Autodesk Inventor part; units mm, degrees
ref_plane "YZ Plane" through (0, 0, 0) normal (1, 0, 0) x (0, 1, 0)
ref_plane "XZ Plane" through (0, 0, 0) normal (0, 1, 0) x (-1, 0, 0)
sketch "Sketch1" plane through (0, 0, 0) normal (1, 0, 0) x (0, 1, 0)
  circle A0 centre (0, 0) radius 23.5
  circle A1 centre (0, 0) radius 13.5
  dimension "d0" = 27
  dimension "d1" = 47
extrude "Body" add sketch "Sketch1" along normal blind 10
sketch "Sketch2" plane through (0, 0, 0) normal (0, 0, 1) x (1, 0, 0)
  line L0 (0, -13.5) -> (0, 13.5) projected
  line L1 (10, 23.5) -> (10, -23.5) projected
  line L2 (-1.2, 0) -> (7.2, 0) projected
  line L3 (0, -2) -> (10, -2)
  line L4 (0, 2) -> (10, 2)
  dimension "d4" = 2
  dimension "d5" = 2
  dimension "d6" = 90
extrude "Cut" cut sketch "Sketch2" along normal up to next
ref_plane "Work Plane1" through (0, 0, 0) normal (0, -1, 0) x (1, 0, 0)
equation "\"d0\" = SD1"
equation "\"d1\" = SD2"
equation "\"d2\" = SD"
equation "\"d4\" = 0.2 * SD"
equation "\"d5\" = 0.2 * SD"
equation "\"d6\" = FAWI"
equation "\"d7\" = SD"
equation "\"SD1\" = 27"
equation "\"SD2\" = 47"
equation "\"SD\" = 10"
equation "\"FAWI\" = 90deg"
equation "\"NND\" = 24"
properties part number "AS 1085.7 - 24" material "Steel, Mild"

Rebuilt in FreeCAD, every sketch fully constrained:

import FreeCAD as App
import Part
import Sketcher
Q = App.Units.Quantity


def add_polygon(sketch, points):
    """Adds a closed chain of lines whose ends are joined by coincident constraints."""
    first, n = sketch.GeometryCount, len(points)
    for a, b in zip(points, points[1:] + points[:1]):
        sketch.addGeometry(Part.LineSegment(App.Vector(*a, 0), App.Vector(*b, 0)), False)
    for i in range(n):
        sketch.addConstraint(Sketcher.Constraint("Coincident", first + i, 2, first + (i + 1) % n, 1))

doc = App.newDocument("Part")
body = doc.addObject("PartDesign::Body", "Body")

sketch1 = doc.addObject("Sketcher::SketchObject", "Sketch")
body.addObject(sketch1)
sketch1.AttachmentSupport = (doc.YZ_Plane, [""])
sketch1.MapMode = "FlatFace"
sketch1.addGeometry([
    Part.Circle(App.Vector(0, 0, 0), App.Vector(0, 0, 1), 23.5),
    Part.Circle(App.Vector(0, 0, 0), App.Vector(0, 0, 1), 13.5),
], False)
sketch1.addConstraint([
    Sketcher.Constraint("Coincident", 0, 3, -1, 1),
    Sketcher.Constraint("Coincident", 1, 3, -1, 1),
    Sketcher.Constraint("Diameter", 0, Q("47 mm")),
    Sketcher.Constraint("Diameter", 1, Q("27 mm")),
])
pad1 = doc.addObject("PartDesign::Pad", "Pad")
body.addObject(pad1)
pad1.Profile = sketch1
pad1.Length = 10

sketch2 = doc.addObject("Sketcher::SketchObject", "Sketch001")
body.addObject(sketch2)
sketch2.AttachmentSupport = (doc.XY_Plane, [""])
sketch2.MapMode = "FlatFace"
add_polygon(sketch2, [(0, 2), (0, -2), (10, -2), (10, 2)])
sketch2.addConstraint([
    Sketcher.Constraint("Vertical", 0),
    Sketcher.Constraint("Horizontal", 1),
    Sketcher.Constraint("Vertical", 2),
    Sketcher.Constraint("Horizontal", 3),
    Sketcher.Constraint("Symmetric", 0, 2, 3, 2, -1, 1),
    Sketcher.Constraint("DistanceY", 0, 2, -1, 1, Q("2 mm")),
    Sketcher.Constraint("DistanceX", 1, 1, 1, 2, Q("10 mm")),
])
pocket1 = doc.addObject("PartDesign::Pocket", "Pocket")
body.addObject(pocket1)
pocket1.Profile = sketch2
pocket1.Length = 23.5
pocket1.Reversed = True

doc.recompute()
